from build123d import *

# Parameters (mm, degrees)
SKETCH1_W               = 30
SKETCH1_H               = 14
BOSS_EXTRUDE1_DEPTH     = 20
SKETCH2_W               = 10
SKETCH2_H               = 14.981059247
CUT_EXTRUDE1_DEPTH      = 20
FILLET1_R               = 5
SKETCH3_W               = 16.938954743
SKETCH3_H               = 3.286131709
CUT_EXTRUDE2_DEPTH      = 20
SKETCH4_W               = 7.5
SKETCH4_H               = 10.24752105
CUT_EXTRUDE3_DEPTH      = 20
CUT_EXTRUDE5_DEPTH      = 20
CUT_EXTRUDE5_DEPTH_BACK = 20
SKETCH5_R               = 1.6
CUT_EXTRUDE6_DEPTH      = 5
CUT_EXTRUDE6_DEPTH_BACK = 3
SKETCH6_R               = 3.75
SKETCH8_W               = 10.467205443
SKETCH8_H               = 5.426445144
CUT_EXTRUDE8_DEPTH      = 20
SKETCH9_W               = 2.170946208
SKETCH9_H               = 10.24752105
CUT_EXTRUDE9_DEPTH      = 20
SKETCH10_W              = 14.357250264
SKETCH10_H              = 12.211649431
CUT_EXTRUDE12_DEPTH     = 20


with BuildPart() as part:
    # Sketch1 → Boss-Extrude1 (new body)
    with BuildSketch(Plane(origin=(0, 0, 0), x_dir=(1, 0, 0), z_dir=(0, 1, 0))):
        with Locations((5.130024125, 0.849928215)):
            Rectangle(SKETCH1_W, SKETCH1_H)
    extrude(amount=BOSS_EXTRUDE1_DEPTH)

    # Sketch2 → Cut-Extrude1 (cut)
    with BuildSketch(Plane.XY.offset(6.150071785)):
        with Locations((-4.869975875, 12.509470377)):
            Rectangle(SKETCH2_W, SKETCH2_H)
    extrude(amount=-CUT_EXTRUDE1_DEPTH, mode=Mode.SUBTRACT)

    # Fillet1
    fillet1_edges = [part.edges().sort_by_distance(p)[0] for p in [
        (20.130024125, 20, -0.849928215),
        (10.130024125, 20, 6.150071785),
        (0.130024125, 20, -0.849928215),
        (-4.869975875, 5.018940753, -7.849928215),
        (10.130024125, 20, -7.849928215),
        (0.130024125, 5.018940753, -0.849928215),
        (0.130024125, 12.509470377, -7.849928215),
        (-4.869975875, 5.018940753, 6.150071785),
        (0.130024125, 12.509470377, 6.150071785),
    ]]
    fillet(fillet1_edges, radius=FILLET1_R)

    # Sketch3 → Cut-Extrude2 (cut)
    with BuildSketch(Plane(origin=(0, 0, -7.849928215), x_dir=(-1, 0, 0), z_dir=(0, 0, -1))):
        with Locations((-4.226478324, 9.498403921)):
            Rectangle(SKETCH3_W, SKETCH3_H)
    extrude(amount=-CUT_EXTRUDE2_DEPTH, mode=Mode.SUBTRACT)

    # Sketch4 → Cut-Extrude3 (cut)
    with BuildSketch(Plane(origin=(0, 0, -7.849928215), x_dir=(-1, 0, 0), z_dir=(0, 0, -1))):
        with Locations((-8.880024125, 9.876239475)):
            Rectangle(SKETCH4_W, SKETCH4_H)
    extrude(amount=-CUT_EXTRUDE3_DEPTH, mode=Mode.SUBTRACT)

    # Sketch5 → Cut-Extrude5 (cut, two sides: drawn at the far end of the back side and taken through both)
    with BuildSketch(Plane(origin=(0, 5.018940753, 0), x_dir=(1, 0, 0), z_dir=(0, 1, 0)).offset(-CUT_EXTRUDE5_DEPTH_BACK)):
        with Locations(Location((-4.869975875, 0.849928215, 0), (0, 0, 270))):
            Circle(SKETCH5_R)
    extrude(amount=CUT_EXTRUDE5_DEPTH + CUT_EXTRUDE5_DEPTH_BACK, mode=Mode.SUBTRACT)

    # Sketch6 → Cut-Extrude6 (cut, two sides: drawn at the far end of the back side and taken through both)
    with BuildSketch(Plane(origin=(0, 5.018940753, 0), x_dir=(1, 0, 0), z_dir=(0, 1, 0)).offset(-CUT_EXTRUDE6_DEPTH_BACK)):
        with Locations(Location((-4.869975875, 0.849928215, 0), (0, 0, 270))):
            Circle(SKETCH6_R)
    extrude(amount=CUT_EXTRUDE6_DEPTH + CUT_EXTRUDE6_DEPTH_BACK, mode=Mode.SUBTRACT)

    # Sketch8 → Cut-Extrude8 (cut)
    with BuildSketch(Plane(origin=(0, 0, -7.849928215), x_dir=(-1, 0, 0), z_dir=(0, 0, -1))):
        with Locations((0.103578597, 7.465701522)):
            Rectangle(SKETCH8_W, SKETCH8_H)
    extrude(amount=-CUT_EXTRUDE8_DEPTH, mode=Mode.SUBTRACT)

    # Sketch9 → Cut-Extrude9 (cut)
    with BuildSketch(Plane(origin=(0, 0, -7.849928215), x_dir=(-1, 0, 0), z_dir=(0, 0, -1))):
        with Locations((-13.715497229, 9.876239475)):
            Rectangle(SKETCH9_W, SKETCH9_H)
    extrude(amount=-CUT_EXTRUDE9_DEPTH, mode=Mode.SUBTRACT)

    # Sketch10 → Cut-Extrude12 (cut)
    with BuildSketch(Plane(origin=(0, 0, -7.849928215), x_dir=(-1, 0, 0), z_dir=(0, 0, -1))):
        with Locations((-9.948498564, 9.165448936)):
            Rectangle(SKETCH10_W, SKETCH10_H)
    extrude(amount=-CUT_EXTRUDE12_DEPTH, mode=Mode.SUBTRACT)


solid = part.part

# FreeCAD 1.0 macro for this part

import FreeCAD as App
import Part
import Sketcher


def edges_at(feature, points):
    """Names of the edges that pass closest to the given points."""
    edges = feature.Shape.Edges
    near = lambda p: min(range(len(edges)), key=lambda i: edges[i].distToShape(Part.Vertex(*p))[0])
    return sorted({f"Edge{near(p) + 1}" for p in points})

doc = App.newDocument("Part")
body = doc.addObject("PartDesign::Body", "Body")

sketch1 = body.newObject("Sketcher::SketchObject", "Sketch")
sketch1.AttachmentSupport = (doc.getObject("XZ_Plane"), [""])
sketch1.MapMode = "FlatFace"
sketch1.addGeometry([
    Part.LineSegment(App.Vector(-10, -8, 0), App.Vector(-10, 6, 0)),
    Part.LineSegment(App.Vector(-10, 6, 0), App.Vector(20, 6, 0)),
    Part.LineSegment(App.Vector(20, 6, 0), App.Vector(20, -8, 0)),
    Part.LineSegment(App.Vector(20, -8, 0), App.Vector(-10, -8, 0)),
], False)
sketch1.addConstraint([
    Sketcher.Constraint("Coincident", 0, 2, 1, 1),
    Sketcher.Constraint("Coincident", 1, 2, 2, 1),
    Sketcher.Constraint("Coincident", 2, 2, 3, 1),
    Sketcher.Constraint("Coincident", 3, 2, 0, 1),
    Sketcher.Constraint("Vertical", 0),
    Sketcher.Constraint("Horizontal", 1),
    Sketcher.Constraint("Vertical", 2),
    Sketcher.Constraint("Horizontal", 3),
    Sketcher.Constraint("DistanceX", 1, 1, 1, 2, 30.0),
    Sketcher.Constraint("DistanceY", 0, 1, 0, 2, 14.0),
    Sketcher.Constraint("DistanceY", -1, 1, 0, 2, 6.150072),
    Sketcher.Constraint("DistanceX", 0, 2, -1, 1, 9.869976),
])
pad1 = body.newObject("PartDesign::Pad", "Pad")
pad1.Profile = sketch1
pad1.Length = 20
pad1.Reversed = True

sketch2 = body.newObject("Sketcher::SketchObject", "Sketch001")
sketch2.AttachmentSupport = (doc.getObject("XY_Plane"), [""])
sketch2.MapMode = "FlatFace"
sketch2.AttachmentOffset = App.Placement(App.Vector(0, 0, 6.150072), App.Rotation())
sketch2.addGeometry([
    Part.LineSegment(App.Vector(-10, 20, 0), App.Vector(-10, 5, 0)),
    Part.LineSegment(App.Vector(-10, 5, 0), App.Vector(0, 5, 0)),
    Part.LineSegment(App.Vector(0, 5, 0), App.Vector(0, 20, 0)),
    Part.LineSegment(App.Vector(0, 20, 0), App.Vector(-10, 20, 0)),
], False)
sketch2.addConstraint([
    Sketcher.Constraint("Coincident", 0, 2, 1, 1),
    Sketcher.Constraint("Coincident", 1, 2, 2, 1),
    Sketcher.Constraint("Coincident", 2, 2, 3, 1),
    Sketcher.Constraint("Coincident", 3, 2, 0, 1),
    Sketcher.Constraint("Vertical", 0),
    Sketcher.Constraint("Horizontal", 1),
    Sketcher.Constraint("Vertical", 2),
    Sketcher.Constraint("Horizontal", 3),
    Sketcher.Constraint("DistanceX", 1, 1, 1, 2, 10.0),
    Sketcher.Constraint("DistanceY", -1, 1, 2, 2, 20.0),
    Sketcher.Constraint("DistanceY", 0, 2, 0, 1, 14.981059),
    Sketcher.Constraint("DistanceX", 0, 2, -1, 1, 9.869976),
])
pocket1 = body.newObject("PartDesign::Pocket", "Pocket")
pocket1.Profile = sketch2
pocket1.Length = 20
doc.recompute()

fillet = body.newObject("PartDesign::Fillet", "Fillet")
fillet.Base = (pocket1, edges_at(pocket1, [
    (20.13, 20, -0.85),
    (10.13, 20, 6.15),
    (0.13, 20, -0.85),
    (-4.87, 5.019, -7.85),
    (10.13, 20, -7.85),
    (0.13, 5.019, -0.85),
    (0.13, 12.509, -7.85),
    (-4.87, 5.019, 6.15),
    (0.13, 12.509, 6.15),
]))
fillet.Radius = 5

sketch3 = body.newObject("Sketcher::SketchObject", "Sketch002")
sketch3.AttachmentSupport = (doc.getObject("XY_Plane"), [""])
sketch3.MapMode = "FlatFace"
sketch3.AttachmentOffset = App.Placement(App.Vector(0, 0, -7.849928), App.Rotation())
sketch3.addGeometry([
    Part.LineSegment(App.Vector(12.7, 11.1, 0), App.Vector(12.7, 7.9, 0)),
    Part.LineSegment(App.Vector(12.7, 7.9, 0), App.Vector(-4.2, 7.9, 0)),
    Part.LineSegment(App.Vector(-4.2, 7.9, 0), App.Vector(-4.2, 11.1, 0)),
    Part.LineSegment(App.Vector(-4.2, 11.1, 0), App.Vector(12.7, 11.1, 0)),
], False)
sketch3.addConstraint([
    Sketcher.Constraint("Coincident", 0, 2, 1, 1),
    Sketcher.Constraint("Coincident", 1, 2, 2, 1),
    Sketcher.Constraint("Coincident", 2, 2, 3, 1),
    Sketcher.Constraint("Coincident", 3, 2, 0, 1),
    Sketcher.Constraint("Vertical", 0),
    Sketcher.Constraint("Horizontal", 1),
    Sketcher.Constraint("Vertical", 2),
    Sketcher.Constraint("Horizontal", 3),
    Sketcher.Constraint("DistanceX", 1, 2, -1, 1, 4.242999),
    Sketcher.Constraint("DistanceY", 0, 2, 0, 1, 3.286132),
    Sketcher.Constraint("DistanceX", 1, 2, 1, 1, 16.938955),
    Sketcher.Constraint("DistanceY", -1, 1, 0, 2, 7.855338),
])
pocket2 = body.newObject("PartDesign::Pocket", "Pocket001")
pocket2.Profile = sketch3
pocket2.Length = 20
pocket2.Reversed = True

sketch4 = body.newObject("Sketcher::SketchObject", "Sketch003")
sketch4.AttachmentSupport = (doc.getObject("XY_Plane"), [""])
sketch4.MapMode = "FlatFace"
sketch4.AttachmentOffset = App.Placement(App.Vector(0, 0, -7.849928), App.Rotation())
sketch4.addGeometry([
    Part.LineSegment(App.Vector(13, 15, 0), App.Vector(13, 5, 0)),
    Part.LineSegment(App.Vector(13, 5, 0), App.Vector(5, 5, 0)),
    Part.LineSegment(App.Vector(5, 5, 0), App.Vector(5, 15, 0)),
    Part.LineSegment(App.Vector(5, 15, 0), App.Vector(13, 15, 0)),
], False)
sketch4.addConstraint([
    Sketcher.Constraint("Coincident", 0, 2, 1, 1),
    Sketcher.Constraint("Coincident", 1, 2, 2, 1),
    Sketcher.Constraint("Coincident", 2, 2, 3, 1),
    Sketcher.Constraint("Coincident", 3, 2, 0, 1),
    Sketcher.Constraint("Vertical", 0),
    Sketcher.Constraint("Horizontal", 1),
    Sketcher.Constraint("Vertical", 2),
    Sketcher.Constraint("Horizontal", 3),
    Sketcher.Constraint("DistanceX", 1, 2, 1, 1, 7.5),
    Sketcher.Constraint("DistanceY", -1, 1, 2, 2, 15.0),
    Sketcher.Constraint("DistanceY", 0, 2, 0, 1, 10.247521),
    Sketcher.Constraint("DistanceX", -1, 1, 0, 2, 12.630024),
])
pocket3 = body.newObject("PartDesign::Pocket", "Pocket002")
pocket3.Profile = sketch4
pocket3.Length = 20
pocket3.Reversed = True

sketch5 = body.newObject("Sketcher::SketchObject", "Sketch004")
sketch5.AttachmentSupport = (doc.getObject("XZ_Plane"), [""])
sketch5.MapMode = "FlatFace"
sketch5.AttachmentOffset = App.Placement(App.Vector(0, 0, -5.018941), App.Rotation())
sketch5.addGeometry(Part.Circle(App.Vector(-4.9, -0.8, 0), App.Vector(0, 0, 1), 1.6), False)
sketch5.addConstraint([
    Sketcher.Constraint("Diameter", 0, 3.2),
    Sketcher.Constraint("DistanceY", 0, 3, -1, 1, 0.849928),
    Sketcher.Constraint("DistanceX", 0, 3, -1, 1, 4.869976),
])
pocket4 = body.newObject("PartDesign::Pocket", "Pocket003")
pocket4.Profile = sketch5
pocket4.Type = "ThroughAll"
pocket4.Midplane = True

sketch6 = body.newObject("Sketcher::SketchObject", "Sketch005")
sketch6.AttachmentSupport = (doc.getObject("XZ_Plane"), [""])
sketch6.MapMode = "FlatFace"
sketch6.AttachmentOffset = App.Placement(App.Vector(0, 0, -5.018941), App.Rotation())
sketch6.addGeometry(Part.Circle(App.Vector(-4.9, -0.8, 0), App.Vector(0, 0, 1), 3.8), False)
sketch6.addConstraint([
    Sketcher.Constraint("Diameter", 0, 7.5),
    Sketcher.Constraint("DistanceY", 0, 3, -1, 1, 0.849928),
    Sketcher.Constraint("DistanceX", 0, 3, -1, 1, 4.869976),
])
pocket5 = body.newObject("PartDesign::Pocket", "Pocket004")
pocket5.Profile = sketch6
pocket5.Type = "TwoLengths"
pocket5.Length = 5
pocket5.Length2 = 3

sketch7 = body.newObject("Sketcher::SketchObject", "Sketch006")
sketch7.AttachmentSupport = (doc.getObject("XY_Plane"), [""])
sketch7.MapMode = "FlatFace"
sketch7.AttachmentOffset = App.Placement(App.Vector(0, 0, -7.849928), App.Rotation())
sketch7.addGeometry([
    Part.LineSegment(App.Vector(5, 10, 0), App.Vector(5, 5, 0)),
    Part.LineSegment(App.Vector(5, 5, 0), App.Vector(-5, 5, 0)),
    Part.LineSegment(App.Vector(-5, 5, 0), App.Vector(-5, 10, 0)),
    Part.LineSegment(App.Vector(-5, 10, 0), App.Vector(5, 10, 0)),
], False)
sketch7.addConstraint([
    Sketcher.Constraint("Coincident", 0, 2, 1, 1),
    Sketcher.Constraint("Coincident", 1, 2, 2, 1),
    Sketcher.Constraint("Coincident", 2, 2, 3, 1),
    Sketcher.Constraint("Coincident", 3, 2, 0, 1),
    Sketcher.Constraint("Vertical", 0),
    Sketcher.Constraint("Horizontal", 1),
    Sketcher.Constraint("Vertical", 2),
    Sketcher.Constraint("Horizontal", 3),
    Sketcher.Constraint("DistanceX", 1, 2, 1, 1, 10.467205),
    Sketcher.Constraint("DistanceY", 0, 2, 0, 1, 5.426445),
    Sketcher.Constraint("DistanceY", -1, 1, 0, 2, 4.752479),
    Sketcher.Constraint("DistanceX", 1, 2, -1, 1, 5.337181),
])
pocket6 = body.newObject("PartDesign::Pocket", "Pocket005")
pocket6.Profile = sketch7
pocket6.Length = 20
pocket6.Reversed = True

sketch8 = body.newObject("Sketcher::SketchObject", "Sketch007")
sketch8.AttachmentSupport = (doc.getObject("XY_Plane"), [""])
sketch8.MapMode = "FlatFace"
sketch8.AttachmentOffset = App.Placement(App.Vector(0, 0, -7.849928), App.Rotation())
sketch8.addGeometry([
    Part.LineSegment(App.Vector(14.8, 15, 0), App.Vector(14.8, 4.8, 0)),
    Part.LineSegment(App.Vector(14.8, 4.8, 0), App.Vector(12.6, 4.8, 0)),
    Part.LineSegment(App.Vector(12.6, 4.8, 0), App.Vector(12.6, 15, 0)),
    Part.LineSegment(App.Vector(12.6, 15, 0), App.Vector(14.8, 15, 0)),
], False)
sketch8.addConstraint([
    Sketcher.Constraint("Coincident", 0, 2, 1, 1),
    Sketcher.Constraint("Coincident", 1, 2, 2, 1),
    Sketcher.Constraint("Coincident", 2, 2, 3, 1),
    Sketcher.Constraint("Coincident", 3, 2, 0, 1),
    Sketcher.Constraint("Vertical", 0),
    Sketcher.Constraint("Horizontal", 1),
    Sketcher.Constraint("Vertical", 2),
    Sketcher.Constraint("Horizontal", 3),
    Sketcher.Constraint("DistanceY", -1, 1, 2, 2, 15.0),
    Sketcher.Constraint("DistanceY", 0, 2, 0, 1, 10.247521),
    Sketcher.Constraint("DistanceX", 1, 2, 1, 1, 2.170946),
    Sketcher.Constraint("DistanceX", -1, 1, 0, 2, 14.80097),
])
pocket7 = body.newObject("PartDesign::Pocket", "Pocket006")
pocket7.Profile = sketch8
pocket7.Length = 20
pocket7.Reversed = True

sketch9 = body.newObject("Sketcher::SketchObject", "Sketch008")
sketch9.AttachmentSupport = (doc.getObject("XY_Plane"), [""])
sketch9.MapMode = "FlatFace"
sketch9.AttachmentOffset = App.Placement(App.Vector(0, 0, -7.849928), App.Rotation())
sketch9.addGeometry([
    Part.LineSegment(App.Vector(17, 15, 0), App.Vector(17, 3, 0)),
    Part.LineSegment(App.Vector(17, 3, 0), App.Vector(3, 3, 0)),
    Part.LineSegment(App.Vector(3, 3, 0), App.Vector(3, 15, 0)),
    Part.LineSegment(App.Vector(3, 15, 0), App.Vector(17, 15, 0)),
], False)
sketch9.addConstraint([
    Sketcher.Constraint("Coincident", 0, 2, 1, 1),
    Sketcher.Constraint("Coincident", 1, 2, 2, 1),
    Sketcher.Constraint("Coincident", 2, 2, 3, 1),
    Sketcher.Constraint("Coincident", 3, 2, 0, 1),
    Sketcher.Constraint("Vertical", 0),
    Sketcher.Constraint("Horizontal", 1),
    Sketcher.Constraint("Vertical", 2),
    Sketcher.Constraint("Horizontal", 3),
    Sketcher.Constraint("DistanceX", 1, 2, 1, 1, 14.35725),
    Sketcher.Constraint("DistanceY", 0, 2, 0, 1, 12.211649),
    Sketcher.Constraint("DistanceX", -1, 1, 0, 2, 17.127124),
    Sketcher.Constraint("DistanceY", -1, 1, 0, 2, 3.059624),
])
pocket8 = body.newObject("PartDesign::Pocket", "Pocket007")
pocket8.Profile = sketch9
pocket8.Length = 20
pocket8.Reversed = True

doc.recompute()
